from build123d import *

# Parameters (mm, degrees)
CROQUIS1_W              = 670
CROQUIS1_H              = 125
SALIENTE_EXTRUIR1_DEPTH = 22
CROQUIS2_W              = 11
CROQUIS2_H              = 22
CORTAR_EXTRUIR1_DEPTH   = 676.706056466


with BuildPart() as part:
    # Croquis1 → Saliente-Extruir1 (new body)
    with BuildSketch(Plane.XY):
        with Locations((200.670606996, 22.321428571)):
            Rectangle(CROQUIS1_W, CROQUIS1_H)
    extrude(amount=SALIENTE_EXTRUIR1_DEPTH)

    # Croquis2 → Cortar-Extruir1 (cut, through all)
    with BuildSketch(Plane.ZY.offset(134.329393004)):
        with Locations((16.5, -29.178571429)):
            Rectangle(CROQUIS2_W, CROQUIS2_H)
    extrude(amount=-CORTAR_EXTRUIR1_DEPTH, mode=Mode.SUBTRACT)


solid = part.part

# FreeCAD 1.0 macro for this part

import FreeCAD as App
import Part
import Sketcher

V = App.Vector


def add_polygon(sketch, points):
    """Adds a closed chain of lines whose ends are joined by coincident constraints."""
    first, n = sketch.GeometryCount, len(points)
    for a, b in zip(points, points[1:] + points[:1]):
        sketch.addGeometry(Part.LineSegment(App.Vector(*a, 0), App.Vector(*b, 0)), False)
    for i in range(n):
        sketch.addConstraint(Sketcher.Constraint("Coincident", first + i, 2, first + (i + 1) % n, 1))

doc = App.newDocument("Part")
body = doc.addObject("PartDesign::Body", "Body")

# Sketch on XY plane
sketch1 = body.newObject("Sketcher::SketchObject", "Sketch")
sketch1.AttachmentSupport = (doc.getObject("XY_Plane"), [""])
sketch1.MapMode = "FlatFace"
add_polygon(sketch1, [(-134, 85), (-134, -40), (536, -40), (536, 85)])  # lines 0-3
sketch1.addConstraint(Sketcher.Constraint("Vertical", 0))
sketch1.addConstraint(Sketcher.Constraint("Horizontal", 1))
sketch1.addConstraint(Sketcher.Constraint("Vertical", 2))
sketch1.addConstraint(Sketcher.Constraint("Horizontal", 3))
sketch1.addConstraint(Sketcher.Constraint("DistanceX", 1, 1, 1, 2, 670.0))
sketch1.addConstraint(Sketcher.Constraint("DistanceY", 0, 2, 0, 1, 125.0))
sketch1.addConstraint(Sketcher.Constraint("DistanceY", 0, 2, -1, 1, 40.178571))
sketch1.addConstraint(Sketcher.Constraint("DistanceX", 0, 2, -1, 1, 134.329393))
pad1 = body.newObject("PartDesign::Pad", "Pad")
pad1.Profile = sketch1
pad1.Length = 22

# Sketch on YZ plane
sketch2 = body.newObject("Sketcher::SketchObject", "Sketch001")
sketch2.AttachmentSupport = (doc.getObject("YZ_Plane"), [""])
sketch2.MapMode = "FlatFace"
sketch2.AttachmentOffset = App.Placement(V(0, 0, -134.329393), App.Rotation())
add_polygon(sketch2, [(-18, 11), (-40, 11), (-40, 22), (-18, 22)])  # lines 0-3
sketch2.addConstraint(Sketcher.Constraint("Horizontal", 0))
sketch2.addConstraint(Sketcher.Constraint("Vertical", 1))
sketch2.addConstraint(Sketcher.Constraint("Horizontal", 2))
sketch2.addConstraint(Sketcher.Constraint("Vertical", 3))
sketch2.addConstraint(Sketcher.Constraint("DistanceX", 0, 2, 0, 1, 22.0))
sketch2.addConstraint(Sketcher.Constraint("DistanceY", 1, 1, 1, 2, 11.0))
sketch2.addConstraint(Sketcher.Constraint("DistanceY", -1, 1, 0, 2, 11.0))
sketch2.addConstraint(Sketcher.Constraint("DistanceX", 0, 2, -1, 1, 40.178571))
pocket1 = body.newObject("PartDesign::Pocket", "Pocket")
pocket1.Profile = sketch2
pocket1.Type = "ThroughAll"
pocket1.Reversed = True

doc.recompute()
